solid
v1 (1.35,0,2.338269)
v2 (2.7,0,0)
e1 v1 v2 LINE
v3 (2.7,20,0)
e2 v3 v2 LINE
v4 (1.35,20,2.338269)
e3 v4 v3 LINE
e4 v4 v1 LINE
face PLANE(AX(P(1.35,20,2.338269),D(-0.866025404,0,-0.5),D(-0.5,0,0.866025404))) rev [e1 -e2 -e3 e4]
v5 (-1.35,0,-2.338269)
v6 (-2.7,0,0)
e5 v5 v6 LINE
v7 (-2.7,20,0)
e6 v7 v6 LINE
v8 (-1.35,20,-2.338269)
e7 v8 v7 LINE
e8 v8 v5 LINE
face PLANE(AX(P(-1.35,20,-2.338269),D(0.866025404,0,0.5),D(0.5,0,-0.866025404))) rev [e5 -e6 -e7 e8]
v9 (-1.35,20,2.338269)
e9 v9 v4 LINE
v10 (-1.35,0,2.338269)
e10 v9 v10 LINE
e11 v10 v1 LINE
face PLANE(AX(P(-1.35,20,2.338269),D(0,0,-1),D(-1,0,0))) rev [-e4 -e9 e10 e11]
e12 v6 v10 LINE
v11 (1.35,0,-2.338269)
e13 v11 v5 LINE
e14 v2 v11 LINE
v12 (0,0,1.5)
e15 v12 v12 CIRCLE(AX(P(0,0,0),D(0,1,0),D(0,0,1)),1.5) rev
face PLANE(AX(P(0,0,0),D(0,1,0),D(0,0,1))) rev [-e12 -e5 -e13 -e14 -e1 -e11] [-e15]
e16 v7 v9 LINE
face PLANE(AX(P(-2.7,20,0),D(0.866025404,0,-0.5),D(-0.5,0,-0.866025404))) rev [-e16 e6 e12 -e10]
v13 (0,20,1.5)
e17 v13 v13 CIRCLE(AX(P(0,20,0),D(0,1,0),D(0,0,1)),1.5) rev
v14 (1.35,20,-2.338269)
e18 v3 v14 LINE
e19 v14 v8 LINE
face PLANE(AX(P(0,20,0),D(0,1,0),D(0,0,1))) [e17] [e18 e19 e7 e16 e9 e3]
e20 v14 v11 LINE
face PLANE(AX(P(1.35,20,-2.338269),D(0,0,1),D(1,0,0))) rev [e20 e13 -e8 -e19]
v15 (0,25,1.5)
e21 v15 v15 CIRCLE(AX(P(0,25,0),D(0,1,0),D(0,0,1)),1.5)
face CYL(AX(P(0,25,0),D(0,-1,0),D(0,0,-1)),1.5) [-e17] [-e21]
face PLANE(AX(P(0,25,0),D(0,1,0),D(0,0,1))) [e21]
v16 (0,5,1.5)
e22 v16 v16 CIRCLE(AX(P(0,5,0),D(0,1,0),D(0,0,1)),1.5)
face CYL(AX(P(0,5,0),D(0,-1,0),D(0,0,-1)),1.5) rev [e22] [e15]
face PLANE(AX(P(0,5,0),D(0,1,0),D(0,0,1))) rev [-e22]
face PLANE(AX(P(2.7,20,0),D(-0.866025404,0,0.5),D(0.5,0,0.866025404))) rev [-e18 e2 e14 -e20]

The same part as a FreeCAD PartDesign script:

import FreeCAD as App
import Part
import Sketcher
Q = App.Units.Quantity

doc = App.newDocument("Part")
body = doc.addObject("PartDesign::Body", "Body")

# Sketch on XZ plane
sketch1 = body.newObject("Sketcher::SketchObject", "Sketch")
sketch1.AttachmentSupport = (doc.getObject("XZ_Plane"), [""])
sketch1.MapMode = "FlatFace"
sketch1.addGeometry([
    Part.LineSegment(App.Vector(2.7, 0, 0), App.Vector(1.4, -2.3, 0)),  # 0
    Part.LineSegment(App.Vector(1.4, -2.3, 0), App.Vector(-1.4, -2.3, 0)),  # 1
    Part.LineSegment(App.Vector(-1.4, -2.3, 0), App.Vector(-2.7, 0, 0)),  # 2
    Part.LineSegment(App.Vector(-2.7, 0, 0), App.Vector(-1.4, 2.3, 0)),  # 3
    Part.LineSegment(App.Vector(-1.4, 2.3, 0), App.Vector(1.4, 2.3, 0)),  # 4
    Part.LineSegment(App.Vector(1.4, 2.3, 0), App.Vector(2.7, 0, 0)),  # 5
], False)
sketch1.addConstraint([
    Sketcher.Constraint("Coincident", 0, 2, 1, 1),
    Sketcher.Constraint("Coincident", 1, 2, 2, 1),
    Sketcher.Constraint("Coincident", 2, 2, 3, 1),
    Sketcher.Constraint("Coincident", 3, 2, 4, 1),
    Sketcher.Constraint("Coincident", 4, 2, 5, 1),
    Sketcher.Constraint("Coincident", 5, 2, 0, 1),
    Sketcher.Constraint("Horizontal", 1),
    Sketcher.Constraint("Horizontal", 4),
    Sketcher.Constraint("Symmetric", 0, 2, 3, 2, -1, 1),
    Sketcher.Constraint("Symmetric", 2, 2, 5, 2, -1, 1),
    Sketcher.Constraint("PointOnObject", 2, 2, -1),
    Sketcher.Constraint("Parallel", 2, 5),
    Sketcher.Constraint("Vertical", 1, 2, 3, 2),
    Sketcher.Constraint("Angle", 0, Q("-120 deg")),
    Sketcher.Constraint("DistanceX", 1, 2, 1, 1, Q("2.7 mm")),
    Sketcher.Constraint("Distance", 0, Q("2.7 mm")),
])
pad1 = body.newObject("PartDesign::Pad", "Pad")
pad1.Profile = sketch1
pad1.Length = 20
pad1.Reversed = True

# Sketch on XZ plane
sketch2 = body.newObject("Sketcher::SketchObject", "Sketch001")
sketch2.AttachmentSupport = (doc.getObject("XZ_Plane"), [""])
sketch2.MapMode = "FlatFace"
sketch2.addGeometry(Part.Circle(App.Vector(0, 0, 0), App.Vector(0, 0, 1), 1.5), False)
sketch2.addConstraint([
    Sketcher.Constraint("Coincident", 0, 3, -1, 1),
    Sketcher.Constraint("Diameter", 0, Q("3 mm")),
])
pad2 = body.newObject("PartDesign::Pad", "Pad001")
pad2.Profile = sketch2
pad2.Length = 25
pad2.Reversed = True

# Sketch on XZ plane
sketch3 = body.newObject("Sketcher::SketchObject", "Sketch002")
sketch3.AttachmentSupport = (doc.getObject("XZ_Plane"), [""])
sketch3.MapMode = "FlatFace"
sketch3.addGeometry(Part.Circle(App.Vector(0, 0, 0), App.Vector(0, 0, 1), 1.5), False)
sketch3.addConstraint([
    Sketcher.Constraint("Coincident", 0, 3, -1, 1),
    Sketcher.Constraint("Diameter", 0, Q("3 mm")),
])
pocket1 = body.newObject("PartDesign::Pocket", "Pocket")
pocket1.Profile = sketch3
pocket1.Type = "TwoLengths"
pocket1.Length = 5
pocket1.Length2 = 1

doc.recompute()
